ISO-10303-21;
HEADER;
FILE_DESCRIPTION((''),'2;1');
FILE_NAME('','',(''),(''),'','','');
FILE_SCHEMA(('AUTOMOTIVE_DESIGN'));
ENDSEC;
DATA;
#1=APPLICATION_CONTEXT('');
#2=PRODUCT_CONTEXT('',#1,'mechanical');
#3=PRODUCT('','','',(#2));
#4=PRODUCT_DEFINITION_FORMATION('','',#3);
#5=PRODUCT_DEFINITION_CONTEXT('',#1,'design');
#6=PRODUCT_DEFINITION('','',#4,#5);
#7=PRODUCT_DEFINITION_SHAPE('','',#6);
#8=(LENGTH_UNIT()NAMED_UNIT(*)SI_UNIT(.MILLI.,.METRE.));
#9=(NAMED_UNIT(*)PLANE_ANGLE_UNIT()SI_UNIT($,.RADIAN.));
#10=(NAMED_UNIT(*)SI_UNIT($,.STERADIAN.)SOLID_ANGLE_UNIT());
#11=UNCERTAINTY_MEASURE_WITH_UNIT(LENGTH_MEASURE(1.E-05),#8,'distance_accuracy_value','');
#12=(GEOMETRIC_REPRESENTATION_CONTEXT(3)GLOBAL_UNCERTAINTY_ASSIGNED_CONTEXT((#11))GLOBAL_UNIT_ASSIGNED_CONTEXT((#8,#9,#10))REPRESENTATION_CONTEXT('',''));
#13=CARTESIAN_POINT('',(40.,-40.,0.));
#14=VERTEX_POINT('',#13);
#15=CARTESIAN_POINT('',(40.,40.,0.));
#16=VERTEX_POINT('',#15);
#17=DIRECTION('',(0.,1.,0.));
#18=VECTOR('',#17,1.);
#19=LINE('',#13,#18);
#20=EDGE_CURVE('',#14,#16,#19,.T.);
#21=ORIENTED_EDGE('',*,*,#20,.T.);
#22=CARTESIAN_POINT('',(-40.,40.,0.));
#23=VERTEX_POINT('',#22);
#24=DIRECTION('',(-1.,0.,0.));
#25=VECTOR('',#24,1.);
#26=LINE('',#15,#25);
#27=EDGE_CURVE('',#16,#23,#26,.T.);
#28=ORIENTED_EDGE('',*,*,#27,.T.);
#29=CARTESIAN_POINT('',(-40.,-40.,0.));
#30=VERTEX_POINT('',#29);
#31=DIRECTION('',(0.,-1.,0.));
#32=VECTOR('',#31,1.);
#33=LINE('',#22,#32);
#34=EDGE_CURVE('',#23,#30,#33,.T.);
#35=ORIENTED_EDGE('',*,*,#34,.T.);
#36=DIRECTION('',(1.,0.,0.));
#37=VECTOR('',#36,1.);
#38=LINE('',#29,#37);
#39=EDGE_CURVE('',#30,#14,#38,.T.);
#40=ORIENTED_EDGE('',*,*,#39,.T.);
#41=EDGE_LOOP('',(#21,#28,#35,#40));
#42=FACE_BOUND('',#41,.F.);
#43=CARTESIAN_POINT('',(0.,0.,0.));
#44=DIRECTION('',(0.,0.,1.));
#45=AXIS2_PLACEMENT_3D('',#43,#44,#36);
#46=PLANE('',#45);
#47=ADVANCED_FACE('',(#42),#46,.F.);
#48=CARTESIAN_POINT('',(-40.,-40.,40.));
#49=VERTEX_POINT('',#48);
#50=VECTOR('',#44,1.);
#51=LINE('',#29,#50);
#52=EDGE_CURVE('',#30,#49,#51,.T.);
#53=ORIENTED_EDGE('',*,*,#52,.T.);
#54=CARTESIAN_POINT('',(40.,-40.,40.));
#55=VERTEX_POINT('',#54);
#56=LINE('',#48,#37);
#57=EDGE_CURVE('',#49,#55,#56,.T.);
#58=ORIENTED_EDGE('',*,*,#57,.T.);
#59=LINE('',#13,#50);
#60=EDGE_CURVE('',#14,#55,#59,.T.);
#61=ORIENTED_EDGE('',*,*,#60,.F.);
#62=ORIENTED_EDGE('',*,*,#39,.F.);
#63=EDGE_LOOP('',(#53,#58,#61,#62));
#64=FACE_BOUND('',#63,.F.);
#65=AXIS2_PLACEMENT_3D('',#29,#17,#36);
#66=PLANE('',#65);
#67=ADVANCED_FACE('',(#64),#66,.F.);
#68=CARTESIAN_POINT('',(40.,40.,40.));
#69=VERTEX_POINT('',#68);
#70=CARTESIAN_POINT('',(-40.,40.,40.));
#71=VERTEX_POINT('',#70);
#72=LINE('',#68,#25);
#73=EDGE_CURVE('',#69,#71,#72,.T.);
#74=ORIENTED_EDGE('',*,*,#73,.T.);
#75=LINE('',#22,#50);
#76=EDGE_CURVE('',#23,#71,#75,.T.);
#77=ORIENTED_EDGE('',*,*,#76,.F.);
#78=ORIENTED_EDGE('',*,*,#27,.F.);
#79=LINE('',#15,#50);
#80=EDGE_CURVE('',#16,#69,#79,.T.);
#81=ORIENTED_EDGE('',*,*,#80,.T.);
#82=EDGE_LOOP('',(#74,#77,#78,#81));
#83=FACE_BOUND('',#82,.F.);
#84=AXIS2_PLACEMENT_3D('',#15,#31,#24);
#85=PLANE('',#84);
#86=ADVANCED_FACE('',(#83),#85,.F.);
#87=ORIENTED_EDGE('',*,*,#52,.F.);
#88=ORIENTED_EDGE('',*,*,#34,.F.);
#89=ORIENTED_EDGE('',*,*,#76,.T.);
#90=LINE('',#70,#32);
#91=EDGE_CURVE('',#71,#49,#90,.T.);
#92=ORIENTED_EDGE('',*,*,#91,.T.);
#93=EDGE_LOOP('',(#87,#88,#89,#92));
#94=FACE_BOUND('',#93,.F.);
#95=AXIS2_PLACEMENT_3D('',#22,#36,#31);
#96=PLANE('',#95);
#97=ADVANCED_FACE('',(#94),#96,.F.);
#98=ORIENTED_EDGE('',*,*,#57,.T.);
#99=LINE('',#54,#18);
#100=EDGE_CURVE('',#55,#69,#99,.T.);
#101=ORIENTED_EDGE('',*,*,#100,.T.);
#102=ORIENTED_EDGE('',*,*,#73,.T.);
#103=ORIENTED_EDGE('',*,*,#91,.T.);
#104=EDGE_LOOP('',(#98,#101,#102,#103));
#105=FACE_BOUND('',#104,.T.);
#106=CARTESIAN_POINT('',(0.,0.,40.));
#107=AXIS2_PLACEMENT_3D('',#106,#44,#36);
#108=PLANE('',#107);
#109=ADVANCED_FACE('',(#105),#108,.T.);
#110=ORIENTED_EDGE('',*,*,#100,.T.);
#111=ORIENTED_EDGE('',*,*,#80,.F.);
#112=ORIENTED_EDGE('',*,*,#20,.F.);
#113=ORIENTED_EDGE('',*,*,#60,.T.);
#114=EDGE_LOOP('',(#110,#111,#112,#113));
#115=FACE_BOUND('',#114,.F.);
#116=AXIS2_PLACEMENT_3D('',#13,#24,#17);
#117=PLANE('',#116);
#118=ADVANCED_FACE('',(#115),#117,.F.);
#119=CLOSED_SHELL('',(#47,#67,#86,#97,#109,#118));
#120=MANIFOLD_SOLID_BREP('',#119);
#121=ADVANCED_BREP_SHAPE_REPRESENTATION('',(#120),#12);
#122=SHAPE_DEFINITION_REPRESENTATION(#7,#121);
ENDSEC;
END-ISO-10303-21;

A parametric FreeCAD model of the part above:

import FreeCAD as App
import Part
import Sketcher
from FreeCAD import Vector
Q = App.Units.Quantity


def add_polygon(sketch, points):
    """Adds a closed chain of lines whose ends are joined by coincident constraints."""
    first, n = sketch.GeometryCount, len(points)
    for a, b in zip(points, points[1:] + points[:1]):
        sketch.addGeometry(Part.LineSegment(App.Vector(*a, 0), App.Vector(*b, 0)), False)
    for i in range(n):
        sketch.addConstraint(Sketcher.Constraint("Coincident", first + i, 2, first + (i + 1) % n, 1))

doc = App.newDocument("Part")
body = doc.addObject("PartDesign::Body", "Body")

sketch1 = doc.addObject("Sketcher::SketchObject", "Sketch")
body.addObject(sketch1)
sketch1.AttachmentSupport = (doc.XY_Plane, [""])
sketch1.MapMode = "FlatFace"
add_polygon(sketch1, [(-40, 40), (-40, -40), (40, -40), (40, 40)])
sketch1.addConstraint([
    Sketcher.Constraint("Vertical", 0),
    Sketcher.Constraint("Horizontal", 1),
    Sketcher.Constraint("Vertical", 2),
    Sketcher.Constraint("Horizontal", 3),
    Sketcher.Constraint("Symmetric", 0, 2, 2, 2, -1, 1),
    Sketcher.Constraint("Equal", 3, 0),
    Sketcher.Constraint("DistanceX", 1, 1, 1, 2, Q("80 mm")),
])
pad1 = doc.addObject("PartDesign::Pad", "Pad")
body.addObject(pad1)
pad1.Profile = sketch1
pad1.Length = 40

doc.recompute()
